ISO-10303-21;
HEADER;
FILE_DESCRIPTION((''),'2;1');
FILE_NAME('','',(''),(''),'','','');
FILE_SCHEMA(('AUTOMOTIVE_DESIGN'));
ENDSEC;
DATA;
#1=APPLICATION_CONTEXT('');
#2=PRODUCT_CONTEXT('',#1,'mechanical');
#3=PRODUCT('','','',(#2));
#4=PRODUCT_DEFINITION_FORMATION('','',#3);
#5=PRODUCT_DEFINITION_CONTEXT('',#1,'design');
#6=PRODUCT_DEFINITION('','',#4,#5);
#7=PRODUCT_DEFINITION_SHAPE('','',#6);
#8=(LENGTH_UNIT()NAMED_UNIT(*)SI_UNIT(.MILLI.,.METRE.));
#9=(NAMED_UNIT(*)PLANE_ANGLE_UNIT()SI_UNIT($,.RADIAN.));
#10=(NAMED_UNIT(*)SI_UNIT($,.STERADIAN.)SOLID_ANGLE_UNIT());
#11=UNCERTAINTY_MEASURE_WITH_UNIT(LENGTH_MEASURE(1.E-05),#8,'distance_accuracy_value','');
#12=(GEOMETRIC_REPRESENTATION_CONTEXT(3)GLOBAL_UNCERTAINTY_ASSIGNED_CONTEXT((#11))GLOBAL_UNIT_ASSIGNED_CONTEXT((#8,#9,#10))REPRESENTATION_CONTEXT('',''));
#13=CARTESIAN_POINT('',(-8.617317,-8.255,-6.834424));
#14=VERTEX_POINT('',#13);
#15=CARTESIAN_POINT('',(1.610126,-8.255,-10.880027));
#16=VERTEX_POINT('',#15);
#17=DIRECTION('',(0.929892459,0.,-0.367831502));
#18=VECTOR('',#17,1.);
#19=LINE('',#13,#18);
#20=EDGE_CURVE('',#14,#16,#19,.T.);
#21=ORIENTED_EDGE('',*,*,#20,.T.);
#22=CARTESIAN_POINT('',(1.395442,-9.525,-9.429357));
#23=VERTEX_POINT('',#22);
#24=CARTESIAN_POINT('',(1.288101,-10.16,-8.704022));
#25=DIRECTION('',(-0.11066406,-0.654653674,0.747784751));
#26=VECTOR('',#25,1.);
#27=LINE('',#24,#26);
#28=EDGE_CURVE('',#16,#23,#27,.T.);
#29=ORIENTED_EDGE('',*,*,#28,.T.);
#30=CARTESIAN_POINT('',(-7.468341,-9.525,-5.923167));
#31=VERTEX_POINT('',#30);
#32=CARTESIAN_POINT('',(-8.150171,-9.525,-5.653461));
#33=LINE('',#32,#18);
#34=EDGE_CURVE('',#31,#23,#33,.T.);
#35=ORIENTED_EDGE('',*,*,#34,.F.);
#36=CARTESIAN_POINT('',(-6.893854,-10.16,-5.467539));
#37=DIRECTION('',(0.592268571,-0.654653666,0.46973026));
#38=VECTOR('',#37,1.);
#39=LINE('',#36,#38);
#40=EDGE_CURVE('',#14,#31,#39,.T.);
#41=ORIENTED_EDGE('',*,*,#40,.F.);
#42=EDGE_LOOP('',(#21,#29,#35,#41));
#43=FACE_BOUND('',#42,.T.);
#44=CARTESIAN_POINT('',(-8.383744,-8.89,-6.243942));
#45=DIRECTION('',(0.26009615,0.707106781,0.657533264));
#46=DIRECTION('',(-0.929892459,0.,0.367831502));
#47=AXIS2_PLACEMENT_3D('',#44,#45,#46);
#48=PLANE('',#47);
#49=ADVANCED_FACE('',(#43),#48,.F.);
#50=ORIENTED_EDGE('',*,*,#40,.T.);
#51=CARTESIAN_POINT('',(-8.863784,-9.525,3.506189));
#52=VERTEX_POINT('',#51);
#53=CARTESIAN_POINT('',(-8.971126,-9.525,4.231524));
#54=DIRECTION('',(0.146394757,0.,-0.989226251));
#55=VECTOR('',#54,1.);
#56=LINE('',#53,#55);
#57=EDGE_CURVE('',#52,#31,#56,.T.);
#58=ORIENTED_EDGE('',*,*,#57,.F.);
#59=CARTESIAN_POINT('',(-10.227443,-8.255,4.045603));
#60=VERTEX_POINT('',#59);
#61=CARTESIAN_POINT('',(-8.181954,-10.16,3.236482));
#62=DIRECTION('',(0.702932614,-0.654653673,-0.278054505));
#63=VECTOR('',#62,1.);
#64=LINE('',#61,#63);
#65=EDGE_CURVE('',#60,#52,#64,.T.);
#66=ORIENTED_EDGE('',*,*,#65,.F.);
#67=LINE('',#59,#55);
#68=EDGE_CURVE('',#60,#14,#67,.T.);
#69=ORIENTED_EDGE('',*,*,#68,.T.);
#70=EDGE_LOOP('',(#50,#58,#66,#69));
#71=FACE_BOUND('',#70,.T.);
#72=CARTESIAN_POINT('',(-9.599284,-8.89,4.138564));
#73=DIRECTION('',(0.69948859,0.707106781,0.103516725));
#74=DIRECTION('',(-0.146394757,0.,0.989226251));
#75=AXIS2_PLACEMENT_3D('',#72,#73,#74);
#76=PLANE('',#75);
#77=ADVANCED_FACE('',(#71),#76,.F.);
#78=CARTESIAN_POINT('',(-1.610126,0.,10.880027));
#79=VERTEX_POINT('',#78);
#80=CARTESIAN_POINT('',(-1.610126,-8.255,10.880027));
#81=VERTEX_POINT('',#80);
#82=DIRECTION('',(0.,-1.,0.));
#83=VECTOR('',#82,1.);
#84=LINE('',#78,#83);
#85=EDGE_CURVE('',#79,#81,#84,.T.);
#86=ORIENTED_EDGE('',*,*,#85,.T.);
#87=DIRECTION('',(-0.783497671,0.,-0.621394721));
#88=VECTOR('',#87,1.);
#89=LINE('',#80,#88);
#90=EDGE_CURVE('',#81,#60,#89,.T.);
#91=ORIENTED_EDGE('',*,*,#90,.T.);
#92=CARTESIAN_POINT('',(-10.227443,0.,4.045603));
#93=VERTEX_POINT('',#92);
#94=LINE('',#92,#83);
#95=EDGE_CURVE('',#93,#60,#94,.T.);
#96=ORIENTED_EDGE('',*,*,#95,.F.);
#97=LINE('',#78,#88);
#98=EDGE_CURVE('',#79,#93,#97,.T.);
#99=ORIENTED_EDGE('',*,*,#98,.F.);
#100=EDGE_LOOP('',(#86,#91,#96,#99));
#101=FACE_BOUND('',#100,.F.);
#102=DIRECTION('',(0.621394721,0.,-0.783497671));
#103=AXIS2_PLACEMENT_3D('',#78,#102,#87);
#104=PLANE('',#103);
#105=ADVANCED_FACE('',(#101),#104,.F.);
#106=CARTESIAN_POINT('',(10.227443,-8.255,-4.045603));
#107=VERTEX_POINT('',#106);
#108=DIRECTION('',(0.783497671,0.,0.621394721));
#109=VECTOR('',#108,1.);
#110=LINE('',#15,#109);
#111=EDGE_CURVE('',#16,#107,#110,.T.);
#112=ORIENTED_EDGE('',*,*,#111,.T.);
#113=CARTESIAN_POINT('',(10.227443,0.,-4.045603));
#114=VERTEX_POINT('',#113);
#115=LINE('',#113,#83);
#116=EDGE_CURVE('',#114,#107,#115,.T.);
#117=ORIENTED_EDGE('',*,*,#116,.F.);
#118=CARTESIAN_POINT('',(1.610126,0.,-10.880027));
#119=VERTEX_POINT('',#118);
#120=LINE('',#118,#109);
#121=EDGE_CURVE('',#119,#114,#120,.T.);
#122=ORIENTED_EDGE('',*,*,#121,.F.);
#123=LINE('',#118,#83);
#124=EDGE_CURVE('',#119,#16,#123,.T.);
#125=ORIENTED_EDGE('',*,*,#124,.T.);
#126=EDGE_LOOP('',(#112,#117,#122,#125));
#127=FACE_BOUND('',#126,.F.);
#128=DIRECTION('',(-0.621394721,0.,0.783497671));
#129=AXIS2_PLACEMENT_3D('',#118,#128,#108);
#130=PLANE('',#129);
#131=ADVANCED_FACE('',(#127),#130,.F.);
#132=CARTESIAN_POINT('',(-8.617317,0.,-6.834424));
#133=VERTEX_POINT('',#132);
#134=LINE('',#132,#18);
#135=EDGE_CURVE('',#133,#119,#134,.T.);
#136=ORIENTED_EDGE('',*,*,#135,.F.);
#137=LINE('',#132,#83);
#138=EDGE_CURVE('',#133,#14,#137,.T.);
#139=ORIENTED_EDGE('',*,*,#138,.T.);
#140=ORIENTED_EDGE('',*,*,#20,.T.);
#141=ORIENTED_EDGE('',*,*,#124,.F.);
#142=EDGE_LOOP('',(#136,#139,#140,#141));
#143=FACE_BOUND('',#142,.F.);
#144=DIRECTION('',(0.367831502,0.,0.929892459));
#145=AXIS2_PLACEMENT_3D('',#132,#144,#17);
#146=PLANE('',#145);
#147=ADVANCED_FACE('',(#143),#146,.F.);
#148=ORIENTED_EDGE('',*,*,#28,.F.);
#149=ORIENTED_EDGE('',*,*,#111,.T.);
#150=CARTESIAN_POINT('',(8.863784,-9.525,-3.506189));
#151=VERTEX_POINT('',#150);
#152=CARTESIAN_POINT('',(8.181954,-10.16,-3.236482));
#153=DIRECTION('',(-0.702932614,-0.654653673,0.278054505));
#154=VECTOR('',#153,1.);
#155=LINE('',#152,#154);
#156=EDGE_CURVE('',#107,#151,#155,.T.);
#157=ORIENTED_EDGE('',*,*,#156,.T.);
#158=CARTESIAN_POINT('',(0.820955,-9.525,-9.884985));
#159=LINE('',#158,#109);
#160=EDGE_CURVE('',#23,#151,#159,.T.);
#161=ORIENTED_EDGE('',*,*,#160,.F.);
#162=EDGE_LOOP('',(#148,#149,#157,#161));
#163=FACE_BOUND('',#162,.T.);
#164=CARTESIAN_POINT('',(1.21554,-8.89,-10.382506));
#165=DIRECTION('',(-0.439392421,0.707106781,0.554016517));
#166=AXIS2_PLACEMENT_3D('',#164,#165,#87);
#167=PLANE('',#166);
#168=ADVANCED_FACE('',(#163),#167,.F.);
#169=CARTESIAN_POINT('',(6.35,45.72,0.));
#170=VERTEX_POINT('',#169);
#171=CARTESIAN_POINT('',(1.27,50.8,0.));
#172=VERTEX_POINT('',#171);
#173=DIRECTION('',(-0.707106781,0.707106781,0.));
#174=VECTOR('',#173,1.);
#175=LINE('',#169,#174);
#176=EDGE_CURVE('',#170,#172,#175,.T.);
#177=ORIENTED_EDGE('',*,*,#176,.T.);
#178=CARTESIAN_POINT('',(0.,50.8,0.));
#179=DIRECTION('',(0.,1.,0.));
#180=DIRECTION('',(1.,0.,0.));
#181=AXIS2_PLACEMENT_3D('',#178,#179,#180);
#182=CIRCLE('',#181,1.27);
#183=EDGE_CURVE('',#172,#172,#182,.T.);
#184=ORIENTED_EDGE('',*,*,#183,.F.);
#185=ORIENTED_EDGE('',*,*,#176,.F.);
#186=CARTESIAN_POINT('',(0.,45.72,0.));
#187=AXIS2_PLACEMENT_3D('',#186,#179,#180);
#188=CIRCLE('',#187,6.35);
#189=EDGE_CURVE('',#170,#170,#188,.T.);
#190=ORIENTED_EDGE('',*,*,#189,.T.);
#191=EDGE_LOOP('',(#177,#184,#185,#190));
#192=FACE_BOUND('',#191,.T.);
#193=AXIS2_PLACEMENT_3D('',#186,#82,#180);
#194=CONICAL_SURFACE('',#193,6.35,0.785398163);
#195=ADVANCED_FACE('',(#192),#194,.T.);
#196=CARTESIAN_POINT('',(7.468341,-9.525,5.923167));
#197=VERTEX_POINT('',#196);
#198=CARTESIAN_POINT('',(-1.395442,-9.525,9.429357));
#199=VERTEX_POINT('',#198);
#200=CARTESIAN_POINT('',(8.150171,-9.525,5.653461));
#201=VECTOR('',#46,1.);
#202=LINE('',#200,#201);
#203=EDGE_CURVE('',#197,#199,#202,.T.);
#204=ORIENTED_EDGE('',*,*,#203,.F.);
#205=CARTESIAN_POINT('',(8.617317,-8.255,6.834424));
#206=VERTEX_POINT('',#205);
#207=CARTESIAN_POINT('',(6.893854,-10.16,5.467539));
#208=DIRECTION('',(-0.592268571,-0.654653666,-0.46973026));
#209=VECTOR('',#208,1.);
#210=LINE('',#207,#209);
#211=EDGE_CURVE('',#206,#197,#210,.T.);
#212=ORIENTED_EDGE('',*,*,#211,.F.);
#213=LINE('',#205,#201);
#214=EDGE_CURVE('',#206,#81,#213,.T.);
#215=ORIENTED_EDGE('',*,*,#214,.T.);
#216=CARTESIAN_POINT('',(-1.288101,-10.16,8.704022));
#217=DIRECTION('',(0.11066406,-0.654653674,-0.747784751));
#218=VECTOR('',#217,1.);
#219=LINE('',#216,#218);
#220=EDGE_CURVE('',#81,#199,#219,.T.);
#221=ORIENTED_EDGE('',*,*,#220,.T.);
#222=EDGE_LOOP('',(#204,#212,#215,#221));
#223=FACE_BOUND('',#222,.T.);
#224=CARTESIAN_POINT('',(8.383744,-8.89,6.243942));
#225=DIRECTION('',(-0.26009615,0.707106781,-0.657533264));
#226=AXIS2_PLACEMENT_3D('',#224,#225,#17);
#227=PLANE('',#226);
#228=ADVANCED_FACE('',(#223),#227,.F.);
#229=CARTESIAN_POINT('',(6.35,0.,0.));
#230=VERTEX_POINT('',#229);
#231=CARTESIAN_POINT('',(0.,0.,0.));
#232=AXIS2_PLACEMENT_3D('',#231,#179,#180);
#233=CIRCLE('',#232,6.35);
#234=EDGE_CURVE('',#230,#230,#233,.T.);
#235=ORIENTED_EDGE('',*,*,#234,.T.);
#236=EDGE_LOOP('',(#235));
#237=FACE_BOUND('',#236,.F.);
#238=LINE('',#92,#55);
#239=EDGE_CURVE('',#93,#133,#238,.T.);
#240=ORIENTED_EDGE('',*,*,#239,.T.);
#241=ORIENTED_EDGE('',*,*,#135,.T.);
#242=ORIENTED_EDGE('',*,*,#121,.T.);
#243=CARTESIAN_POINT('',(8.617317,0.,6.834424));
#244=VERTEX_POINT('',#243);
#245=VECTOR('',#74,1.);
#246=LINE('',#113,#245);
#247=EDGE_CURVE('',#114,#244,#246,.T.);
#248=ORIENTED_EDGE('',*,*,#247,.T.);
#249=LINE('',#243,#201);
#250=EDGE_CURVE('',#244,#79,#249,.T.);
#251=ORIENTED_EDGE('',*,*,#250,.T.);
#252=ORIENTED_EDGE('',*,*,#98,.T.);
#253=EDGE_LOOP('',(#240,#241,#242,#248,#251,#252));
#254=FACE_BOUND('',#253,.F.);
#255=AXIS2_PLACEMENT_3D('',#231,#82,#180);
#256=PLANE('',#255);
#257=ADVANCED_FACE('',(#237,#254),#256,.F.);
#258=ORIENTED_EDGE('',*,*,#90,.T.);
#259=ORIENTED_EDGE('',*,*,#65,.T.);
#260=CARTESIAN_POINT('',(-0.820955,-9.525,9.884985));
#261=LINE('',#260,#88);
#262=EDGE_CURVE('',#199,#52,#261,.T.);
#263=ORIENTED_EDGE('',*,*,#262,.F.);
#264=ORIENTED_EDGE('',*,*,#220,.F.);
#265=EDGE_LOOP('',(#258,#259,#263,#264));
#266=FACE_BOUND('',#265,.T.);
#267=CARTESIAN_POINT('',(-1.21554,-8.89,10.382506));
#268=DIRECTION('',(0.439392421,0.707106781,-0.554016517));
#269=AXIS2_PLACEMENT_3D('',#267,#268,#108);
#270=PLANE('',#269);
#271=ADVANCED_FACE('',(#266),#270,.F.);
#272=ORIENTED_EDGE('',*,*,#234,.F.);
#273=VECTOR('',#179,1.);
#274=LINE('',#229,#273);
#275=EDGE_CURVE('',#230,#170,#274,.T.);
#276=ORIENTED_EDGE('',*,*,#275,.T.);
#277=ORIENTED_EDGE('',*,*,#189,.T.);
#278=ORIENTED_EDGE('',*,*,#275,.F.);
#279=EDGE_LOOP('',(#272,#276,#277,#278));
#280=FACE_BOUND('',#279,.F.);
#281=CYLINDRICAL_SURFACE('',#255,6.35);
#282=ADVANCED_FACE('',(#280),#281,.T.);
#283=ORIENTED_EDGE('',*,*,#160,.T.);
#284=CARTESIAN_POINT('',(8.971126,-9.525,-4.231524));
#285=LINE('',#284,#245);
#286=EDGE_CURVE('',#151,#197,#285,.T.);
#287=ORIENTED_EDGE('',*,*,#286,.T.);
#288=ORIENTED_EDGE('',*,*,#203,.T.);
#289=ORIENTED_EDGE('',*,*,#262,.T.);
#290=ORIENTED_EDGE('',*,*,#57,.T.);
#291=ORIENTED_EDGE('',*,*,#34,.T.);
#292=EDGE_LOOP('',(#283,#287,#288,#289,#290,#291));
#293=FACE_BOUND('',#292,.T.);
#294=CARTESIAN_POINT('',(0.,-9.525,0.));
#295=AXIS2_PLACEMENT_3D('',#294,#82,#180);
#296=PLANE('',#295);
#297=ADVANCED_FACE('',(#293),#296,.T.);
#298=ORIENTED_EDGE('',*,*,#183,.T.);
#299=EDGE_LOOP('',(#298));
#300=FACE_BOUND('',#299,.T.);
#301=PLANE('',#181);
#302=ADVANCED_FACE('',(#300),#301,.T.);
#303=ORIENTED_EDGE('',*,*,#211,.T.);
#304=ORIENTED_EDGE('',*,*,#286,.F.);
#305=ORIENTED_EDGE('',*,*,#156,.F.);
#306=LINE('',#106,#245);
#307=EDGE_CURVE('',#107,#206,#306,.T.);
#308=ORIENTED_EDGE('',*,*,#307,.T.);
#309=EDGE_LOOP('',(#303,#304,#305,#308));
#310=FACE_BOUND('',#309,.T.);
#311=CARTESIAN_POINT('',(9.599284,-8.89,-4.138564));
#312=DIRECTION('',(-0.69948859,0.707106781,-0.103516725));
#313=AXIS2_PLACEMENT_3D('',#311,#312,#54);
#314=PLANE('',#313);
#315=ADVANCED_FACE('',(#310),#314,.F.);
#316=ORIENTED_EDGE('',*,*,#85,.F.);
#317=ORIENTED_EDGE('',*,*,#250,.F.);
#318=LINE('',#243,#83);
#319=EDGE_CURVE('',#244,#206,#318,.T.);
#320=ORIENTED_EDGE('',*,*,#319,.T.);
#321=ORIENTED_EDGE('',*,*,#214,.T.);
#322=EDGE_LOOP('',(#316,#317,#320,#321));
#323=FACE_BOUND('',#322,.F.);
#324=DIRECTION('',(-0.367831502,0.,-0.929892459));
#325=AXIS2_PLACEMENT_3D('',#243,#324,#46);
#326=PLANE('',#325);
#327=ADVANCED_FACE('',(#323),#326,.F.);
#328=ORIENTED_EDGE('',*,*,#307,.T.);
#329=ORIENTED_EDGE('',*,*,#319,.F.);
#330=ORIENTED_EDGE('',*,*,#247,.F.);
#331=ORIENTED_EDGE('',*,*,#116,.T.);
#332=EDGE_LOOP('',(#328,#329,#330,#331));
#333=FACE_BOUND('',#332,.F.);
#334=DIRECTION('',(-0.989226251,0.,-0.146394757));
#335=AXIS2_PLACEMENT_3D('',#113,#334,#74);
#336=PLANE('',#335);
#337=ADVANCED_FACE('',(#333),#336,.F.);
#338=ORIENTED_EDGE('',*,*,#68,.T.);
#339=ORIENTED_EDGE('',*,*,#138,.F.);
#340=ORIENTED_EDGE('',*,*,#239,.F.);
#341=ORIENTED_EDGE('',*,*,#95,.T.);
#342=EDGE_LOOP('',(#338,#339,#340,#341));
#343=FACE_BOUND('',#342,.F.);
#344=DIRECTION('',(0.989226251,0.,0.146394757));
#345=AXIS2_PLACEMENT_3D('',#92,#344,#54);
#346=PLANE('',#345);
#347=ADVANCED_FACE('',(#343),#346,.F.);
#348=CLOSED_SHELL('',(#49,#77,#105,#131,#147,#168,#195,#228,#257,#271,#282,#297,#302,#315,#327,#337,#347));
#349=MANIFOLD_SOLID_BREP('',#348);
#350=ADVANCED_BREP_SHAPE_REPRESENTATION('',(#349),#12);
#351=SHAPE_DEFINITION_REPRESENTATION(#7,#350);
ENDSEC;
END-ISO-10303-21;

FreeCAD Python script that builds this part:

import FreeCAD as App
import Part
import Sketcher
from FreeCAD import Vector
Q = App.Units.Quantity


def edges_at(feature, points):
    """Names of the edges that pass closest to the given points."""
    edges = feature.Shape.Edges
    near = lambda p: min(range(len(edges)), key=lambda i: edges[i].distToShape(Part.Vertex(*p))[0])
    return sorted({f"Edge{near(p) + 1}" for p in points})


def add_polygon(sketch, points):
    """Adds a closed chain of lines whose ends are joined by coincident constraints."""
    first, n = sketch.GeometryCount, len(points)
    for a, b in zip(points, points[1:] + points[:1]):
        sketch.addGeometry(Part.LineSegment(App.Vector(*a, 0), App.Vector(*b, 0)), False)
    for i in range(n):
        sketch.addConstraint(Sketcher.Constraint("Coincident", first + i, 2, first + (i + 1) % n, 1))

doc = App.newDocument("Part")
params = doc.addObject("Spreadsheet::Sheet", "Params")
for row, (alias, value) in enumerate([
    ("pad1_length", "0.375 in"),
    ("sketch2_diameter", "0.5 in"),
    ("pad2_length", "2 in"),
    ("chamfer_size", "0.2 in"),
    ("chamfer2_size", "0.05 in"),
], start=1):
    params.set(f"A{row}", alias)
    params.set(f"B{row}", "=" + value)
    params.setAlias(f"B{row}", alias)

body = doc.addObject("PartDesign::Body", "Body")

# Sketch on XZ plane
sketch1 = doc.addObject("Sketcher::SketchObject", "Sketch")
body.addObject(sketch1)
sketch1.AttachmentSupport = (doc.XZ_Plane, [""])
sketch1.MapMode = "FlatFace"
add_polygon(sketch1, [(-2, 11), (-10, 4), (-9, -7), (2, -11), (10, -4), (9, 7)])  # lines 0-5
sketch1.addConstraint([
    Sketcher.Constraint("Symmetric", 0, 2, 3, 2, -1, 1),
    Sketcher.Constraint("Symmetric", 1, 2, 4, 2, -1, 1),
    Sketcher.Constraint("Symmetric", 2, 2, 5, 2, -1, 1),
    Sketcher.Constraint("Equal", 0, 1),
    Sketcher.Constraint("Equal", 1, 2),
    Sketcher.Constraint("DistanceX", 0, 2, 2, 2, Q("11.837569 mm")),
    Sketcher.Constraint("DistanceY", 2, 2, 0, 2, Q("14.92563 mm")),
    Sketcher.Constraint("DistanceX", 1, 2, 3, 2, Q("18.84476 mm")),
    Sketcher.Constraint("DistanceY", 1, 2, 3, 2, Q("2.788821 mm")),
])
pad1 = doc.addObject("PartDesign::Pad", "Pad")
body.addObject(pad1)
pad1.Profile = sketch1
pad1.setExpression("Length", "Params.pad1_length")

# Sketch on XZ plane
sketch2 = doc.addObject("Sketcher::SketchObject", "Sketch001")
body.addObject(sketch2)
sketch2.AttachmentSupport = (doc.XZ_Plane, [""])
sketch2.MapMode = "FlatFace"
sketch2.addGeometry(Part.Circle(Vector(0, 0, 0), Vector(0, 0, 1), 6), False)
sketch2.addConstraint([
    Sketcher.Constraint("Coincident", 0, 3, -1, 1),
    Sketcher.Constraint("Diameter", 0, Q("0.5 in")),
])
sketch2.setExpression("Constraints[1]", "Params.sketch2_diameter")
pad2 = doc.addObject("PartDesign::Pad", "Pad001")
body.addObject(pad2)
pad2.Profile = sketch2
pad2.setExpression("Length", "Params.pad2_length")
pad2.Reversed = True
doc.recompute()

chamfer = doc.addObject("PartDesign::Chamfer", "Chamfer")
body.addObject(chamfer)
chamfer.Base = (pad2, edges_at(pad2, [(-6.35, 50.8, 0)]))
chamfer.setExpression("Size", "Params.chamfer_size")
doc.recompute()

chamfer2 = doc.addObject("PartDesign::Chamfer", "Chamfer001")
body.addObject(chamfer2)
chamfer2.Base = (chamfer, edges_at(chamfer, [
    (-5.919, -9.525, 7.463),
    (3.504, -9.525, 8.857),
    (9.422, -9.525, 1.394),
    (5.919, -9.525, -7.463),
    (-3.504, -9.525, -8.857),
    (-9.422, -9.525, -1.394),
]))
chamfer2.setExpression("Size", "Params.chamfer2_size")

doc.recompute()
